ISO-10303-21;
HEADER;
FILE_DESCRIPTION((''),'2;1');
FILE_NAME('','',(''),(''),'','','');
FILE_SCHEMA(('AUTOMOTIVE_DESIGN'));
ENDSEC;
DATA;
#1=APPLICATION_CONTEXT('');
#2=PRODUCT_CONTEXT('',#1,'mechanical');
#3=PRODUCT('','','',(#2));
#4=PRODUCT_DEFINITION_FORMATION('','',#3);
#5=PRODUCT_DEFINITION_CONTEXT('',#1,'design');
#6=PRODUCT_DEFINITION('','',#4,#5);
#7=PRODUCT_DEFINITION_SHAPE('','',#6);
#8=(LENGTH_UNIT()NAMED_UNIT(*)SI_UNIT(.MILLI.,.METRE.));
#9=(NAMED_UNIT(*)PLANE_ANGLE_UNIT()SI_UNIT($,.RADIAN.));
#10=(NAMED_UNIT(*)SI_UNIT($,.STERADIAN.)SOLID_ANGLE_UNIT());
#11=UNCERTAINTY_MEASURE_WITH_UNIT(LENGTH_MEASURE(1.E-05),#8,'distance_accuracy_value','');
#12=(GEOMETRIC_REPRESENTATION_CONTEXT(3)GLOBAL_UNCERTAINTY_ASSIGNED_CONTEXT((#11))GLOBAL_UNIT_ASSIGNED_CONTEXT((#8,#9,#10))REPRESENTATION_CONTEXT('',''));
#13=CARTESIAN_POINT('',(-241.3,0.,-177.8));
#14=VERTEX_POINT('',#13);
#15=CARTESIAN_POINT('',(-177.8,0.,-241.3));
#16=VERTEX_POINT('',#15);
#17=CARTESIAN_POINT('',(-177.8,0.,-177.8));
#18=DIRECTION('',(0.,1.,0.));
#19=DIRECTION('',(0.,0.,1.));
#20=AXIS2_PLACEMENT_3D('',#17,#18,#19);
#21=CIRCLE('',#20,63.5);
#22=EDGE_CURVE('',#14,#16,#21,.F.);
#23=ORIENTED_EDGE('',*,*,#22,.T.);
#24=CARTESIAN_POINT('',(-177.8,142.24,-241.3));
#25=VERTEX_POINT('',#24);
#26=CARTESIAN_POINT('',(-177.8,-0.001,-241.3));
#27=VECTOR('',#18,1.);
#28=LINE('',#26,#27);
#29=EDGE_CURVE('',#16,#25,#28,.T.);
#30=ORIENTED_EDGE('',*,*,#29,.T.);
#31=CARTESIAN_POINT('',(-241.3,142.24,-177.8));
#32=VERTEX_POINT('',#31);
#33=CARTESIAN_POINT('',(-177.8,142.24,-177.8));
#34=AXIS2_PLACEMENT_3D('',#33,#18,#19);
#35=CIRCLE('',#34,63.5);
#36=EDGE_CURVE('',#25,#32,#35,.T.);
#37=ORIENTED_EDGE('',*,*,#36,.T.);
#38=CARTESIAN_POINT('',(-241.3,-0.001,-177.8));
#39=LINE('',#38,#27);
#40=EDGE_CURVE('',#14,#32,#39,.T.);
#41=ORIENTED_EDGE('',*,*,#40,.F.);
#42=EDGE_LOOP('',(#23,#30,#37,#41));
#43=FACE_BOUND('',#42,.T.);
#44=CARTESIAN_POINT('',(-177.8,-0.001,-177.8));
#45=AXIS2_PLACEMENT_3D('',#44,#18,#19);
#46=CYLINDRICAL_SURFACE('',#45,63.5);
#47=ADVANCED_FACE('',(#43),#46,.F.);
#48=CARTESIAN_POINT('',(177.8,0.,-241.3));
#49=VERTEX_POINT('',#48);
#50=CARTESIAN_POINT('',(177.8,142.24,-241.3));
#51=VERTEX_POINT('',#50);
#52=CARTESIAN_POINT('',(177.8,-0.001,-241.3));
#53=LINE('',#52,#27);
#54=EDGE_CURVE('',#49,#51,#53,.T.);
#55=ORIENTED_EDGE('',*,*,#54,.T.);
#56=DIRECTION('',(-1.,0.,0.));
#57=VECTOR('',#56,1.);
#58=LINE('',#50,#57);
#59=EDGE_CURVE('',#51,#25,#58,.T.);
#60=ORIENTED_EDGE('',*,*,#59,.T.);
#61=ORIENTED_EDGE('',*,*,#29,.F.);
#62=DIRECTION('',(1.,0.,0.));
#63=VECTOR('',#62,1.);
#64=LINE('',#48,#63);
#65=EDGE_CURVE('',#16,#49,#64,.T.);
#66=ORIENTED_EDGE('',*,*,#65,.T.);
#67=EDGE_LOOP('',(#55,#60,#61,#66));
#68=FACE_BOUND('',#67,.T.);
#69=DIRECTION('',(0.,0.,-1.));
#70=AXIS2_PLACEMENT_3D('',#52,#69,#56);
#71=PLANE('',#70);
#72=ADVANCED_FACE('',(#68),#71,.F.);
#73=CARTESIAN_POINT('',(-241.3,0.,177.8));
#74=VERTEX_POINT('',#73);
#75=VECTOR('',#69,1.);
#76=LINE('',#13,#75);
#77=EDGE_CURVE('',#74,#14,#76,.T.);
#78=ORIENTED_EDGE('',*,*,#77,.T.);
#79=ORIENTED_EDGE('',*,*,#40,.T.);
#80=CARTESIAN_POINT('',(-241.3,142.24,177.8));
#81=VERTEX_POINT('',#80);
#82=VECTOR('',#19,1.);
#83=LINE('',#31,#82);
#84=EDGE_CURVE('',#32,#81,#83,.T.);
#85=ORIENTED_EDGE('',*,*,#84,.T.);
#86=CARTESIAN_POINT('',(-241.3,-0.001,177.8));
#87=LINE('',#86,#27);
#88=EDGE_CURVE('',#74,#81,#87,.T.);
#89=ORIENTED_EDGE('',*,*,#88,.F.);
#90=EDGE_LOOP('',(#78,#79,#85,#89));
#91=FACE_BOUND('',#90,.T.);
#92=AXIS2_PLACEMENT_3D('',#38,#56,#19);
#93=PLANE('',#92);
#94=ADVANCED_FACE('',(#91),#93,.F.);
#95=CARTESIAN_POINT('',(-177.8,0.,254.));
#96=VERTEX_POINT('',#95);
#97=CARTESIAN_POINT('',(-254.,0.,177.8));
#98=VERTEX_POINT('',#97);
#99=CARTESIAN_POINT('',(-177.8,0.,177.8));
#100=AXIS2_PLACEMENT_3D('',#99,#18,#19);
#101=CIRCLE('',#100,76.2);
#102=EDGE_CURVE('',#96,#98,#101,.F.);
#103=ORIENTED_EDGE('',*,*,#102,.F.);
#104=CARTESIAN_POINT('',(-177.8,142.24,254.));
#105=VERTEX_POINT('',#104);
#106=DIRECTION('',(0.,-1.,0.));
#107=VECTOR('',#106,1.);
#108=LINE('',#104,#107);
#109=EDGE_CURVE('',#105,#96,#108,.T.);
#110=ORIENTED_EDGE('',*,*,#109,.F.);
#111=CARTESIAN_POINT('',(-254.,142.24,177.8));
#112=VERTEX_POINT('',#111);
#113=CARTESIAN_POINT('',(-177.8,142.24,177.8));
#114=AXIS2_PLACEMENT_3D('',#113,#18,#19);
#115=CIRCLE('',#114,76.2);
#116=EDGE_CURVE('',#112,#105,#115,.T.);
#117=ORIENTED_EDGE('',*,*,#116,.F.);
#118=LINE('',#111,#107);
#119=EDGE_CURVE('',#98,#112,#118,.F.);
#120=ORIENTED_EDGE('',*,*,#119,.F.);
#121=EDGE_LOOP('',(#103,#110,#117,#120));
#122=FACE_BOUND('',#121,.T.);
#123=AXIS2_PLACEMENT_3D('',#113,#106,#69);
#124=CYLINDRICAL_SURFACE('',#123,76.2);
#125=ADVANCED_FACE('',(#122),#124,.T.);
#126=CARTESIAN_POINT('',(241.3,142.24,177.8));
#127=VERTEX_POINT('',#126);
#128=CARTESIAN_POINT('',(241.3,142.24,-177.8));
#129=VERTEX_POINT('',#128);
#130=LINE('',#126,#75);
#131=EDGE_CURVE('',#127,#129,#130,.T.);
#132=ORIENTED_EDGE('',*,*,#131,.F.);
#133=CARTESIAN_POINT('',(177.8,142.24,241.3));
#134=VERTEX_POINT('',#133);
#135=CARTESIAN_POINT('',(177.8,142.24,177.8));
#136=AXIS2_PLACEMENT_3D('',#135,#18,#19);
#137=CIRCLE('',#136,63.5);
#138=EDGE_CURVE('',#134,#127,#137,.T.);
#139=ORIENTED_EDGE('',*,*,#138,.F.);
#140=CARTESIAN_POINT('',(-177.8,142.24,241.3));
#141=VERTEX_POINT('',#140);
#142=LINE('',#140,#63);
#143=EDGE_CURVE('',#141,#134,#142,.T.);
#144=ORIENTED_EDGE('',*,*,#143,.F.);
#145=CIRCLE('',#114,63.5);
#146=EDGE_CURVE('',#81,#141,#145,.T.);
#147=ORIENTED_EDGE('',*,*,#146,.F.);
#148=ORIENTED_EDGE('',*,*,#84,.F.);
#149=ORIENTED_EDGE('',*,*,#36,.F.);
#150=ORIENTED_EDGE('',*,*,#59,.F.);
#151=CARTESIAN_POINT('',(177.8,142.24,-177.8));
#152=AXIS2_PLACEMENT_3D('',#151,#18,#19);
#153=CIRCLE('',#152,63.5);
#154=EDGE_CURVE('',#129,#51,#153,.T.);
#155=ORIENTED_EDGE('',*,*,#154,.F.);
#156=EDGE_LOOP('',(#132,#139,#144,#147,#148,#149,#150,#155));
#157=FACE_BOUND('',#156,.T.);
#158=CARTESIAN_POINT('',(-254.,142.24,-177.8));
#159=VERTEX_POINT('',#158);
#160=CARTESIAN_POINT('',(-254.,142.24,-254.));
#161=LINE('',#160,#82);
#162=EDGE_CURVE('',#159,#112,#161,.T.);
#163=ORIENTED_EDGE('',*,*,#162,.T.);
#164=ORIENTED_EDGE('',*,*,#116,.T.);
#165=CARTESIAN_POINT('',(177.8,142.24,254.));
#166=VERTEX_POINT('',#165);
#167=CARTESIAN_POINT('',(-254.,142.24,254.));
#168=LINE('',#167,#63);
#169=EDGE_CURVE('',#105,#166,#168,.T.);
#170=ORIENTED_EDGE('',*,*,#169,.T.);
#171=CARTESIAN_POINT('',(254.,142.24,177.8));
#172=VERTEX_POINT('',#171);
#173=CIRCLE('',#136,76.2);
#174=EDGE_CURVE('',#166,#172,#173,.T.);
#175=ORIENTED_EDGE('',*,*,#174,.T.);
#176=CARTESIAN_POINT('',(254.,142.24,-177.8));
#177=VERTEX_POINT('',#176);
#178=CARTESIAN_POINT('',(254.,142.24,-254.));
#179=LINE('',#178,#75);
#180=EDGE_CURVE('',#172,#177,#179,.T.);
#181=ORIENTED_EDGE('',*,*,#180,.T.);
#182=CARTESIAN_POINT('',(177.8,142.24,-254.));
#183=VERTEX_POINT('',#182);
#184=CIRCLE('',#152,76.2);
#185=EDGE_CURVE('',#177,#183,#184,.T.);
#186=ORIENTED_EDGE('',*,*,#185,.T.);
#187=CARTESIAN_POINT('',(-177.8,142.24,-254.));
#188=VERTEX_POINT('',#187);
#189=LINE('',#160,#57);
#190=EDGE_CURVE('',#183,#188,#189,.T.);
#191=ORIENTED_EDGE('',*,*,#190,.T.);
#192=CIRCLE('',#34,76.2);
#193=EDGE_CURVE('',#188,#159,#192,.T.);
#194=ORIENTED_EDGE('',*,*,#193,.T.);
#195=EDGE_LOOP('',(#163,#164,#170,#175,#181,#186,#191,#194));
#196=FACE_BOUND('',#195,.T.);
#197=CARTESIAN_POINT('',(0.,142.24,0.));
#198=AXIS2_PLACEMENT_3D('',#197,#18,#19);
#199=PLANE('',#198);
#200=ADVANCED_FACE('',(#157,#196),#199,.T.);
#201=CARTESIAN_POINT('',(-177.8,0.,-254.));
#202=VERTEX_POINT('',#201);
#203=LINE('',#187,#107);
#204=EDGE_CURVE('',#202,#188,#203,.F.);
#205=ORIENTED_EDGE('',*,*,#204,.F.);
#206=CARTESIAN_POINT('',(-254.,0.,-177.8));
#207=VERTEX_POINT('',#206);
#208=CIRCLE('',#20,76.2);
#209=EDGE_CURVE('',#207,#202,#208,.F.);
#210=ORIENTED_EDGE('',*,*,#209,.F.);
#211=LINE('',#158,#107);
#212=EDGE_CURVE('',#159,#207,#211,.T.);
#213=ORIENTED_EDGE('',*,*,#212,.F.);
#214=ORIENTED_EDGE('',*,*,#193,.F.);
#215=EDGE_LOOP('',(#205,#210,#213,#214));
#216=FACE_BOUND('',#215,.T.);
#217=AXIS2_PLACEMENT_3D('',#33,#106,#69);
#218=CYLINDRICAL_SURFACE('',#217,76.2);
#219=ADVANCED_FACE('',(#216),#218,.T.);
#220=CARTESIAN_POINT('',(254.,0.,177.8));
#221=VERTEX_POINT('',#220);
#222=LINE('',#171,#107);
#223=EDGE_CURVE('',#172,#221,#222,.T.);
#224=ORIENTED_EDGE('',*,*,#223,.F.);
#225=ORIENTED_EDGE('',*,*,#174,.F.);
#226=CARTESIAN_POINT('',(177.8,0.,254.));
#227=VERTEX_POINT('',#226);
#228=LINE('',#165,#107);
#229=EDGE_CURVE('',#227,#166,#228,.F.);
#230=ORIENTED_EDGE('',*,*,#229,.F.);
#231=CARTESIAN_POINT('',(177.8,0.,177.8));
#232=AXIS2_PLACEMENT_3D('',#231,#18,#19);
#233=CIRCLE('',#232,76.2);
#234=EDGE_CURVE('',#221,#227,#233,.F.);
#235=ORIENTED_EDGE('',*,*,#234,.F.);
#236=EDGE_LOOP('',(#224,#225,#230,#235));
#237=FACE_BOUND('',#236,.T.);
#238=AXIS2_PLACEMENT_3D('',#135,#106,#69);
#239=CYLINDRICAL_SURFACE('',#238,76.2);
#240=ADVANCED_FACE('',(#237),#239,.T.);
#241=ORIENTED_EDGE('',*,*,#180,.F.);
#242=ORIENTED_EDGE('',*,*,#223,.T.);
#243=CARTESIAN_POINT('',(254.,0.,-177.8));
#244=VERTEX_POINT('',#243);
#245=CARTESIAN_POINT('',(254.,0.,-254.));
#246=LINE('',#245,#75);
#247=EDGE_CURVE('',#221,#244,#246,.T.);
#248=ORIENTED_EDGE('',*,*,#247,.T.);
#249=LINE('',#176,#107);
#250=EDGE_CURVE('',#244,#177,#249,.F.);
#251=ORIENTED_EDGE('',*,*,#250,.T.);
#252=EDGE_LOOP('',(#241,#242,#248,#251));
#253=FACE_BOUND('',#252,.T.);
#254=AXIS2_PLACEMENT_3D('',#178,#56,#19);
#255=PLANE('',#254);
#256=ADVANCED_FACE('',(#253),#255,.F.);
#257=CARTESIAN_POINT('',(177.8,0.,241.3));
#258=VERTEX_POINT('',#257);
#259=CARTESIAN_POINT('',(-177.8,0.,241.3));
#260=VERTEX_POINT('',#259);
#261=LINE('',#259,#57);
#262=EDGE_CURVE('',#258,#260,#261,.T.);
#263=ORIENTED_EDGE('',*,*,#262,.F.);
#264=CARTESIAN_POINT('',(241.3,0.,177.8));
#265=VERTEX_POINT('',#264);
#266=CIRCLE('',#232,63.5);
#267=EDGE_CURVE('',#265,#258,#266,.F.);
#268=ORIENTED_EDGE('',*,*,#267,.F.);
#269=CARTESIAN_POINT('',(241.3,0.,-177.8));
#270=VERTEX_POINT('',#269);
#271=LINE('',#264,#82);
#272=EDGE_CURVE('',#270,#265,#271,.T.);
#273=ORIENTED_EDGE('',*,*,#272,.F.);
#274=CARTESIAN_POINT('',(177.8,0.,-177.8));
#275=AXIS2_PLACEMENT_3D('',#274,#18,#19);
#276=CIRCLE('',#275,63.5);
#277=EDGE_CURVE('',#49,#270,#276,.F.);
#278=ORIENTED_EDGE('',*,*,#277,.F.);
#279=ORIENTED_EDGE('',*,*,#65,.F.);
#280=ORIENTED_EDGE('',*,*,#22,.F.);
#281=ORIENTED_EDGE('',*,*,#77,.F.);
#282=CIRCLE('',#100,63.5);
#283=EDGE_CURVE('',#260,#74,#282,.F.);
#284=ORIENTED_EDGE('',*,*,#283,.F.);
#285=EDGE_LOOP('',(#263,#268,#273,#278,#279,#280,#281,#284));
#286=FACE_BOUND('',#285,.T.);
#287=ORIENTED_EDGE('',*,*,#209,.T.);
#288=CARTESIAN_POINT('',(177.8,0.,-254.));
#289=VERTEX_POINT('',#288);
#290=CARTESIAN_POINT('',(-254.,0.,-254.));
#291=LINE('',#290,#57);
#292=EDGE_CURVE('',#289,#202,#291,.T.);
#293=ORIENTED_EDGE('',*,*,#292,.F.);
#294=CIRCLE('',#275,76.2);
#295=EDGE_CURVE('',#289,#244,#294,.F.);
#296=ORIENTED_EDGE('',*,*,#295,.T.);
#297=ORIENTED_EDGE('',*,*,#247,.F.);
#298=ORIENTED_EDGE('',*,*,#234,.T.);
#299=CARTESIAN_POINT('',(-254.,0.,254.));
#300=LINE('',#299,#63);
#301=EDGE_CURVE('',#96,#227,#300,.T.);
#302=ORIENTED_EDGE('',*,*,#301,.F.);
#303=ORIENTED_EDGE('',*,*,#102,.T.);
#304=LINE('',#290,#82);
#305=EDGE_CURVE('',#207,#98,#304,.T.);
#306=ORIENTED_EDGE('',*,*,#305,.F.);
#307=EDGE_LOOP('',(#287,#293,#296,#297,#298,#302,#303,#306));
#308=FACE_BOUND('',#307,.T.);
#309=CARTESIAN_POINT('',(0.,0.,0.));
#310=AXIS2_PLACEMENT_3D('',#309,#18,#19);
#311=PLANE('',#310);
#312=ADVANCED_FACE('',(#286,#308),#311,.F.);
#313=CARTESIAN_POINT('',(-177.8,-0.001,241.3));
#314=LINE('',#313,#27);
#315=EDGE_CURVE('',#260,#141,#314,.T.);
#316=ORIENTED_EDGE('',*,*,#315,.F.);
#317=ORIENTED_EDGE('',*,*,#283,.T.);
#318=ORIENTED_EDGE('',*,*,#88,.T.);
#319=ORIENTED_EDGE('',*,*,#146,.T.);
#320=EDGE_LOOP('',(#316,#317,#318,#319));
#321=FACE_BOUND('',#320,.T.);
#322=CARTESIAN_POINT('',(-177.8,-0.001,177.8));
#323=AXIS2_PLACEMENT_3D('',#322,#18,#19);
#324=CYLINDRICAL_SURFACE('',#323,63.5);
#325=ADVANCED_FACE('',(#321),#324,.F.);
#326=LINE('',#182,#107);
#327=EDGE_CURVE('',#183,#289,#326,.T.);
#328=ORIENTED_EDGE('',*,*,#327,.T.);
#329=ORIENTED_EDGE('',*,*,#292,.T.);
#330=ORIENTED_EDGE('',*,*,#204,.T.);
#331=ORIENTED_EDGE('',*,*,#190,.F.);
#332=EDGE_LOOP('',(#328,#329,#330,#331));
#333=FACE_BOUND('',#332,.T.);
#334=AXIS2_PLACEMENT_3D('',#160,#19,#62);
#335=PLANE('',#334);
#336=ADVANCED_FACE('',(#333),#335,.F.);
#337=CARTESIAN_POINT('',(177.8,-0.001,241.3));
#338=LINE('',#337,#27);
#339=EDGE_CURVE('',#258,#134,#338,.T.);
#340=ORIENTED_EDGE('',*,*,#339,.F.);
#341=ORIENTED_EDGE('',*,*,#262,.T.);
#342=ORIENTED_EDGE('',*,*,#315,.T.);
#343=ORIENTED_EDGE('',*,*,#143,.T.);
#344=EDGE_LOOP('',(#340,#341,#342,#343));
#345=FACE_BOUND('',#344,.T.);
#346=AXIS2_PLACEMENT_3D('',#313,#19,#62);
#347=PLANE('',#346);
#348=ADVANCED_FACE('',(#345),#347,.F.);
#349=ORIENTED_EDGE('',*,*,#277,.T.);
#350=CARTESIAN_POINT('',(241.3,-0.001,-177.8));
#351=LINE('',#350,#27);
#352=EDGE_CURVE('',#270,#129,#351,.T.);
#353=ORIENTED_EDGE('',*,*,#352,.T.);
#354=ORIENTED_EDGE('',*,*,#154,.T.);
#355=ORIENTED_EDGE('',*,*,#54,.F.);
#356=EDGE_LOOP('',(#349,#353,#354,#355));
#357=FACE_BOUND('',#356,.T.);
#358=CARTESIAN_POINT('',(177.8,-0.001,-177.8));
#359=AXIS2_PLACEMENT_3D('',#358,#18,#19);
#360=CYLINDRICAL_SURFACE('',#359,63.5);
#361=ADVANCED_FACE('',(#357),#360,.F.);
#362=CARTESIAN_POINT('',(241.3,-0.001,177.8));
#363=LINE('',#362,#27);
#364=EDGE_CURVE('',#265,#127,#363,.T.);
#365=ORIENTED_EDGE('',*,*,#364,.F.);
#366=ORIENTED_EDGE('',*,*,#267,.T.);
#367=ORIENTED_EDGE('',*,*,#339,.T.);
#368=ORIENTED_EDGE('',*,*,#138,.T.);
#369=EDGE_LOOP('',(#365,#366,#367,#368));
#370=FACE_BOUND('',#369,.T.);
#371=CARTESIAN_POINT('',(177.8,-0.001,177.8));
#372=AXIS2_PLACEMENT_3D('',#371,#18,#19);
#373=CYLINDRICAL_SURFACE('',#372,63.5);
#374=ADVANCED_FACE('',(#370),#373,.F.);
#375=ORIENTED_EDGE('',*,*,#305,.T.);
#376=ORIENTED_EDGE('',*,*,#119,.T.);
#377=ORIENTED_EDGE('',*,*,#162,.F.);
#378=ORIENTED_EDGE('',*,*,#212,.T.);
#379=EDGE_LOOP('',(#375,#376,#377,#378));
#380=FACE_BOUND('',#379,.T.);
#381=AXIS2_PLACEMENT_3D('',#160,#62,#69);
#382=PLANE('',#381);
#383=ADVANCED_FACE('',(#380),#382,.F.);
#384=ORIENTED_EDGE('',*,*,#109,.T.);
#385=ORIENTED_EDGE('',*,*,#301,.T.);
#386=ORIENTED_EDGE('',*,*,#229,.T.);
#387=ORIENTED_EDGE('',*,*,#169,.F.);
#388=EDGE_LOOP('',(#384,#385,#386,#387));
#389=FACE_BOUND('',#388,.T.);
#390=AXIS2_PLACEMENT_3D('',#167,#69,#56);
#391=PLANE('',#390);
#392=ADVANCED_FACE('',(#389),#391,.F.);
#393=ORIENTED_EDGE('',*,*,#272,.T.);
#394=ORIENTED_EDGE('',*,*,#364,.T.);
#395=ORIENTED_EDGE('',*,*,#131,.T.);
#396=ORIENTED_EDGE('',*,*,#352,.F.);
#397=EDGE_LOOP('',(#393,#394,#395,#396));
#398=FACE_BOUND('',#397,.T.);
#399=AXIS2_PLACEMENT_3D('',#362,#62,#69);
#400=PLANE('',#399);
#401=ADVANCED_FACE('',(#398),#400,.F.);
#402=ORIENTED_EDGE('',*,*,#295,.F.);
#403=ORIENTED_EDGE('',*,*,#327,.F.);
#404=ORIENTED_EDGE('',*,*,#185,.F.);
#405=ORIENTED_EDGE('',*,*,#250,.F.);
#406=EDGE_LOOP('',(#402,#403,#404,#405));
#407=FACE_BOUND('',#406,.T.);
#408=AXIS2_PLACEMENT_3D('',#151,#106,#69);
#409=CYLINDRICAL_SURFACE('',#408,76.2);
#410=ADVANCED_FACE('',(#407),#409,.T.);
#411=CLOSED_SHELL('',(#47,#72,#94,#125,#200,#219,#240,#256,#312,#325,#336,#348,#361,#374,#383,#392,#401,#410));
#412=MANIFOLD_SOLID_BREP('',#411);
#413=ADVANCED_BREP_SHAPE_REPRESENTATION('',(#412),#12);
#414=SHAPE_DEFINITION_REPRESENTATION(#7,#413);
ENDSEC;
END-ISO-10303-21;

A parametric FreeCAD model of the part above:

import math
import FreeCAD as App
import Part
import Sketcher
Q = App.Units.Quantity


def edges_at(feature, points):
    """Names of the edges that pass closest to the given points."""
    edges = feature.Shape.Edges
    near = lambda p: min(range(len(edges)), key=lambda i: edges[i].distToShape(Part.Vertex(*p))[0])
    return sorted({f"Edge{near(p) + 1}" for p in points})


def add_polygon(sketch, points):
    """Adds a closed chain of lines whose ends are joined by coincident constraints."""
    first, n = sketch.GeometryCount, len(points)
    for a, b in zip(points, points[1:] + points[:1]):
        sketch.addGeometry(Part.LineSegment(App.Vector(*a, 0), App.Vector(*b, 0)), False)
    for i in range(n):
        sketch.addConstraint(Sketcher.Constraint("Coincident", first + i, 2, first + (i + 1) % n, 1))

doc = App.newDocument("Part")
body = doc.addObject("PartDesign::Body", "Body")

sketch1 = body.newObject("Sketcher::SketchObject", "Sketch")
sketch1.AttachmentSupport = (doc.getObject("XZ_Plane"), [""])
sketch1.MapMode = "FlatFace"
add_polygon(sketch1, [(-254, -254), (-254, 254), (254, 254), (254, -254)])
sketch1.addConstraint([
    Sketcher.Constraint("Vertical", 0),
    Sketcher.Constraint("Horizontal", 1),
    Sketcher.Constraint("Vertical", 2),
    Sketcher.Constraint("Horizontal", 3),
    Sketcher.Constraint("Symmetric", 0, 2, 2, 2, -1, 1),
    Sketcher.Constraint("Equal", 3, 0),
    Sketcher.Constraint("DistanceX", 1, 1, 1, 2, Q("20 in")),
])
pad1 = body.newObject("PartDesign::Pad", "Pad")
pad1.Profile = sketch1
pad1.Length = Q("5.6 in")
pad1.Reversed = True
doc.recompute()

fillet = body.newObject("PartDesign::Fillet", "Fillet")
fillet.Base = (pad1, edges_at(pad1, [
    (254, 71.12, 254),
    (-254, 71.12, 254),
    (-254, 71.12, -254),
    (254, 71.12, -254),
]))
fillet.Radius = Q("3 in")

sketch2 = body.newObject("Sketcher::SketchObject", "Sketch001")
sketch2.AttachmentSupport = (doc.getObject("XZ_Plane"), [""])
sketch2.MapMode = "FlatFace"
sketch2.AttachmentOffset = App.Placement(App.Vector(0, 0, -5.6 * 25.4), App.Rotation())
sketch2.addGeometry([
    Part.LineSegment(App.Vector(-241, -178, 0), App.Vector(-241, 178, 0)),
    Part.ArcOfCircle(Part.Circle(App.Vector(-178, 178, 0), App.Vector(0, 0, 1), 64), math.radians(90), math.radians(180)),
    Part.LineSegment(App.Vector(-178, 241, 0), App.Vector(178, 241, 0)),
    Part.ArcOfCircle(Part.Circle(App.Vector(178, 178, 0), App.Vector(0, 0, 1), 64), math.radians(0), math.radians(90)),
    Part.LineSegment(App.Vector(241, 178, 0), App.Vector(241, -178, 0)),
    Part.ArcOfCircle(Part.Circle(App.Vector(178, -178, 0), App.Vector(0, 0, 1), 64), math.radians(-90), math.radians(0)),
    Part.LineSegment(App.Vector(178, -241, 0), App.Vector(-178, -241, 0)),
    Part.ArcOfCircle(Part.Circle(App.Vector(-178, -178, 0), App.Vector(0, 0, 1), 64), math.radians(-180), math.radians(-90)),
], False)
sketch2.addConstraint([
    Sketcher.Constraint("Tangent", 0, 2, 1, 2),
    Sketcher.Constraint("Tangent", 1, 1, 2, 1),
    Sketcher.Constraint("Tangent", 2, 2, 3, 2),
    Sketcher.Constraint("Tangent", 3, 1, 4, 1),
    Sketcher.Constraint("Tangent", 4, 2, 5, 2),
    Sketcher.Constraint("Tangent", 5, 1, 6, 1),
    Sketcher.Constraint("Tangent", 6, 2, 7, 2),
    Sketcher.Constraint("Tangent", 7, 1, 0, 1),
    Sketcher.Constraint("Vertical", 0),
    Sketcher.Constraint("Horizontal", 2),
    Sketcher.Constraint("Vertical", 4),
    Sketcher.Constraint("Horizontal", 6),
    Sketcher.Constraint("Equal", 1, 3),
    Sketcher.Constraint("Equal", 3, 5),
    Sketcher.Constraint("Equal", 5, 7),
    Sketcher.Constraint("Symmetric", 1, 3, 5, 3, -1, 1),
    Sketcher.Constraint("Equal", 6, 0),
    Sketcher.Constraint("Radius", 1, Q("2.5 in")),
    Sketcher.Constraint("DistanceX", 2, 1, 2, 2, Q("14 in")),
])
pocket1 = body.newObject("PartDesign::Pocket", "Pocket")
pocket1.Profile = sketch2
pocket1.Type = "UpToFirst"
pocket1.Reversed = True

doc.recompute()
